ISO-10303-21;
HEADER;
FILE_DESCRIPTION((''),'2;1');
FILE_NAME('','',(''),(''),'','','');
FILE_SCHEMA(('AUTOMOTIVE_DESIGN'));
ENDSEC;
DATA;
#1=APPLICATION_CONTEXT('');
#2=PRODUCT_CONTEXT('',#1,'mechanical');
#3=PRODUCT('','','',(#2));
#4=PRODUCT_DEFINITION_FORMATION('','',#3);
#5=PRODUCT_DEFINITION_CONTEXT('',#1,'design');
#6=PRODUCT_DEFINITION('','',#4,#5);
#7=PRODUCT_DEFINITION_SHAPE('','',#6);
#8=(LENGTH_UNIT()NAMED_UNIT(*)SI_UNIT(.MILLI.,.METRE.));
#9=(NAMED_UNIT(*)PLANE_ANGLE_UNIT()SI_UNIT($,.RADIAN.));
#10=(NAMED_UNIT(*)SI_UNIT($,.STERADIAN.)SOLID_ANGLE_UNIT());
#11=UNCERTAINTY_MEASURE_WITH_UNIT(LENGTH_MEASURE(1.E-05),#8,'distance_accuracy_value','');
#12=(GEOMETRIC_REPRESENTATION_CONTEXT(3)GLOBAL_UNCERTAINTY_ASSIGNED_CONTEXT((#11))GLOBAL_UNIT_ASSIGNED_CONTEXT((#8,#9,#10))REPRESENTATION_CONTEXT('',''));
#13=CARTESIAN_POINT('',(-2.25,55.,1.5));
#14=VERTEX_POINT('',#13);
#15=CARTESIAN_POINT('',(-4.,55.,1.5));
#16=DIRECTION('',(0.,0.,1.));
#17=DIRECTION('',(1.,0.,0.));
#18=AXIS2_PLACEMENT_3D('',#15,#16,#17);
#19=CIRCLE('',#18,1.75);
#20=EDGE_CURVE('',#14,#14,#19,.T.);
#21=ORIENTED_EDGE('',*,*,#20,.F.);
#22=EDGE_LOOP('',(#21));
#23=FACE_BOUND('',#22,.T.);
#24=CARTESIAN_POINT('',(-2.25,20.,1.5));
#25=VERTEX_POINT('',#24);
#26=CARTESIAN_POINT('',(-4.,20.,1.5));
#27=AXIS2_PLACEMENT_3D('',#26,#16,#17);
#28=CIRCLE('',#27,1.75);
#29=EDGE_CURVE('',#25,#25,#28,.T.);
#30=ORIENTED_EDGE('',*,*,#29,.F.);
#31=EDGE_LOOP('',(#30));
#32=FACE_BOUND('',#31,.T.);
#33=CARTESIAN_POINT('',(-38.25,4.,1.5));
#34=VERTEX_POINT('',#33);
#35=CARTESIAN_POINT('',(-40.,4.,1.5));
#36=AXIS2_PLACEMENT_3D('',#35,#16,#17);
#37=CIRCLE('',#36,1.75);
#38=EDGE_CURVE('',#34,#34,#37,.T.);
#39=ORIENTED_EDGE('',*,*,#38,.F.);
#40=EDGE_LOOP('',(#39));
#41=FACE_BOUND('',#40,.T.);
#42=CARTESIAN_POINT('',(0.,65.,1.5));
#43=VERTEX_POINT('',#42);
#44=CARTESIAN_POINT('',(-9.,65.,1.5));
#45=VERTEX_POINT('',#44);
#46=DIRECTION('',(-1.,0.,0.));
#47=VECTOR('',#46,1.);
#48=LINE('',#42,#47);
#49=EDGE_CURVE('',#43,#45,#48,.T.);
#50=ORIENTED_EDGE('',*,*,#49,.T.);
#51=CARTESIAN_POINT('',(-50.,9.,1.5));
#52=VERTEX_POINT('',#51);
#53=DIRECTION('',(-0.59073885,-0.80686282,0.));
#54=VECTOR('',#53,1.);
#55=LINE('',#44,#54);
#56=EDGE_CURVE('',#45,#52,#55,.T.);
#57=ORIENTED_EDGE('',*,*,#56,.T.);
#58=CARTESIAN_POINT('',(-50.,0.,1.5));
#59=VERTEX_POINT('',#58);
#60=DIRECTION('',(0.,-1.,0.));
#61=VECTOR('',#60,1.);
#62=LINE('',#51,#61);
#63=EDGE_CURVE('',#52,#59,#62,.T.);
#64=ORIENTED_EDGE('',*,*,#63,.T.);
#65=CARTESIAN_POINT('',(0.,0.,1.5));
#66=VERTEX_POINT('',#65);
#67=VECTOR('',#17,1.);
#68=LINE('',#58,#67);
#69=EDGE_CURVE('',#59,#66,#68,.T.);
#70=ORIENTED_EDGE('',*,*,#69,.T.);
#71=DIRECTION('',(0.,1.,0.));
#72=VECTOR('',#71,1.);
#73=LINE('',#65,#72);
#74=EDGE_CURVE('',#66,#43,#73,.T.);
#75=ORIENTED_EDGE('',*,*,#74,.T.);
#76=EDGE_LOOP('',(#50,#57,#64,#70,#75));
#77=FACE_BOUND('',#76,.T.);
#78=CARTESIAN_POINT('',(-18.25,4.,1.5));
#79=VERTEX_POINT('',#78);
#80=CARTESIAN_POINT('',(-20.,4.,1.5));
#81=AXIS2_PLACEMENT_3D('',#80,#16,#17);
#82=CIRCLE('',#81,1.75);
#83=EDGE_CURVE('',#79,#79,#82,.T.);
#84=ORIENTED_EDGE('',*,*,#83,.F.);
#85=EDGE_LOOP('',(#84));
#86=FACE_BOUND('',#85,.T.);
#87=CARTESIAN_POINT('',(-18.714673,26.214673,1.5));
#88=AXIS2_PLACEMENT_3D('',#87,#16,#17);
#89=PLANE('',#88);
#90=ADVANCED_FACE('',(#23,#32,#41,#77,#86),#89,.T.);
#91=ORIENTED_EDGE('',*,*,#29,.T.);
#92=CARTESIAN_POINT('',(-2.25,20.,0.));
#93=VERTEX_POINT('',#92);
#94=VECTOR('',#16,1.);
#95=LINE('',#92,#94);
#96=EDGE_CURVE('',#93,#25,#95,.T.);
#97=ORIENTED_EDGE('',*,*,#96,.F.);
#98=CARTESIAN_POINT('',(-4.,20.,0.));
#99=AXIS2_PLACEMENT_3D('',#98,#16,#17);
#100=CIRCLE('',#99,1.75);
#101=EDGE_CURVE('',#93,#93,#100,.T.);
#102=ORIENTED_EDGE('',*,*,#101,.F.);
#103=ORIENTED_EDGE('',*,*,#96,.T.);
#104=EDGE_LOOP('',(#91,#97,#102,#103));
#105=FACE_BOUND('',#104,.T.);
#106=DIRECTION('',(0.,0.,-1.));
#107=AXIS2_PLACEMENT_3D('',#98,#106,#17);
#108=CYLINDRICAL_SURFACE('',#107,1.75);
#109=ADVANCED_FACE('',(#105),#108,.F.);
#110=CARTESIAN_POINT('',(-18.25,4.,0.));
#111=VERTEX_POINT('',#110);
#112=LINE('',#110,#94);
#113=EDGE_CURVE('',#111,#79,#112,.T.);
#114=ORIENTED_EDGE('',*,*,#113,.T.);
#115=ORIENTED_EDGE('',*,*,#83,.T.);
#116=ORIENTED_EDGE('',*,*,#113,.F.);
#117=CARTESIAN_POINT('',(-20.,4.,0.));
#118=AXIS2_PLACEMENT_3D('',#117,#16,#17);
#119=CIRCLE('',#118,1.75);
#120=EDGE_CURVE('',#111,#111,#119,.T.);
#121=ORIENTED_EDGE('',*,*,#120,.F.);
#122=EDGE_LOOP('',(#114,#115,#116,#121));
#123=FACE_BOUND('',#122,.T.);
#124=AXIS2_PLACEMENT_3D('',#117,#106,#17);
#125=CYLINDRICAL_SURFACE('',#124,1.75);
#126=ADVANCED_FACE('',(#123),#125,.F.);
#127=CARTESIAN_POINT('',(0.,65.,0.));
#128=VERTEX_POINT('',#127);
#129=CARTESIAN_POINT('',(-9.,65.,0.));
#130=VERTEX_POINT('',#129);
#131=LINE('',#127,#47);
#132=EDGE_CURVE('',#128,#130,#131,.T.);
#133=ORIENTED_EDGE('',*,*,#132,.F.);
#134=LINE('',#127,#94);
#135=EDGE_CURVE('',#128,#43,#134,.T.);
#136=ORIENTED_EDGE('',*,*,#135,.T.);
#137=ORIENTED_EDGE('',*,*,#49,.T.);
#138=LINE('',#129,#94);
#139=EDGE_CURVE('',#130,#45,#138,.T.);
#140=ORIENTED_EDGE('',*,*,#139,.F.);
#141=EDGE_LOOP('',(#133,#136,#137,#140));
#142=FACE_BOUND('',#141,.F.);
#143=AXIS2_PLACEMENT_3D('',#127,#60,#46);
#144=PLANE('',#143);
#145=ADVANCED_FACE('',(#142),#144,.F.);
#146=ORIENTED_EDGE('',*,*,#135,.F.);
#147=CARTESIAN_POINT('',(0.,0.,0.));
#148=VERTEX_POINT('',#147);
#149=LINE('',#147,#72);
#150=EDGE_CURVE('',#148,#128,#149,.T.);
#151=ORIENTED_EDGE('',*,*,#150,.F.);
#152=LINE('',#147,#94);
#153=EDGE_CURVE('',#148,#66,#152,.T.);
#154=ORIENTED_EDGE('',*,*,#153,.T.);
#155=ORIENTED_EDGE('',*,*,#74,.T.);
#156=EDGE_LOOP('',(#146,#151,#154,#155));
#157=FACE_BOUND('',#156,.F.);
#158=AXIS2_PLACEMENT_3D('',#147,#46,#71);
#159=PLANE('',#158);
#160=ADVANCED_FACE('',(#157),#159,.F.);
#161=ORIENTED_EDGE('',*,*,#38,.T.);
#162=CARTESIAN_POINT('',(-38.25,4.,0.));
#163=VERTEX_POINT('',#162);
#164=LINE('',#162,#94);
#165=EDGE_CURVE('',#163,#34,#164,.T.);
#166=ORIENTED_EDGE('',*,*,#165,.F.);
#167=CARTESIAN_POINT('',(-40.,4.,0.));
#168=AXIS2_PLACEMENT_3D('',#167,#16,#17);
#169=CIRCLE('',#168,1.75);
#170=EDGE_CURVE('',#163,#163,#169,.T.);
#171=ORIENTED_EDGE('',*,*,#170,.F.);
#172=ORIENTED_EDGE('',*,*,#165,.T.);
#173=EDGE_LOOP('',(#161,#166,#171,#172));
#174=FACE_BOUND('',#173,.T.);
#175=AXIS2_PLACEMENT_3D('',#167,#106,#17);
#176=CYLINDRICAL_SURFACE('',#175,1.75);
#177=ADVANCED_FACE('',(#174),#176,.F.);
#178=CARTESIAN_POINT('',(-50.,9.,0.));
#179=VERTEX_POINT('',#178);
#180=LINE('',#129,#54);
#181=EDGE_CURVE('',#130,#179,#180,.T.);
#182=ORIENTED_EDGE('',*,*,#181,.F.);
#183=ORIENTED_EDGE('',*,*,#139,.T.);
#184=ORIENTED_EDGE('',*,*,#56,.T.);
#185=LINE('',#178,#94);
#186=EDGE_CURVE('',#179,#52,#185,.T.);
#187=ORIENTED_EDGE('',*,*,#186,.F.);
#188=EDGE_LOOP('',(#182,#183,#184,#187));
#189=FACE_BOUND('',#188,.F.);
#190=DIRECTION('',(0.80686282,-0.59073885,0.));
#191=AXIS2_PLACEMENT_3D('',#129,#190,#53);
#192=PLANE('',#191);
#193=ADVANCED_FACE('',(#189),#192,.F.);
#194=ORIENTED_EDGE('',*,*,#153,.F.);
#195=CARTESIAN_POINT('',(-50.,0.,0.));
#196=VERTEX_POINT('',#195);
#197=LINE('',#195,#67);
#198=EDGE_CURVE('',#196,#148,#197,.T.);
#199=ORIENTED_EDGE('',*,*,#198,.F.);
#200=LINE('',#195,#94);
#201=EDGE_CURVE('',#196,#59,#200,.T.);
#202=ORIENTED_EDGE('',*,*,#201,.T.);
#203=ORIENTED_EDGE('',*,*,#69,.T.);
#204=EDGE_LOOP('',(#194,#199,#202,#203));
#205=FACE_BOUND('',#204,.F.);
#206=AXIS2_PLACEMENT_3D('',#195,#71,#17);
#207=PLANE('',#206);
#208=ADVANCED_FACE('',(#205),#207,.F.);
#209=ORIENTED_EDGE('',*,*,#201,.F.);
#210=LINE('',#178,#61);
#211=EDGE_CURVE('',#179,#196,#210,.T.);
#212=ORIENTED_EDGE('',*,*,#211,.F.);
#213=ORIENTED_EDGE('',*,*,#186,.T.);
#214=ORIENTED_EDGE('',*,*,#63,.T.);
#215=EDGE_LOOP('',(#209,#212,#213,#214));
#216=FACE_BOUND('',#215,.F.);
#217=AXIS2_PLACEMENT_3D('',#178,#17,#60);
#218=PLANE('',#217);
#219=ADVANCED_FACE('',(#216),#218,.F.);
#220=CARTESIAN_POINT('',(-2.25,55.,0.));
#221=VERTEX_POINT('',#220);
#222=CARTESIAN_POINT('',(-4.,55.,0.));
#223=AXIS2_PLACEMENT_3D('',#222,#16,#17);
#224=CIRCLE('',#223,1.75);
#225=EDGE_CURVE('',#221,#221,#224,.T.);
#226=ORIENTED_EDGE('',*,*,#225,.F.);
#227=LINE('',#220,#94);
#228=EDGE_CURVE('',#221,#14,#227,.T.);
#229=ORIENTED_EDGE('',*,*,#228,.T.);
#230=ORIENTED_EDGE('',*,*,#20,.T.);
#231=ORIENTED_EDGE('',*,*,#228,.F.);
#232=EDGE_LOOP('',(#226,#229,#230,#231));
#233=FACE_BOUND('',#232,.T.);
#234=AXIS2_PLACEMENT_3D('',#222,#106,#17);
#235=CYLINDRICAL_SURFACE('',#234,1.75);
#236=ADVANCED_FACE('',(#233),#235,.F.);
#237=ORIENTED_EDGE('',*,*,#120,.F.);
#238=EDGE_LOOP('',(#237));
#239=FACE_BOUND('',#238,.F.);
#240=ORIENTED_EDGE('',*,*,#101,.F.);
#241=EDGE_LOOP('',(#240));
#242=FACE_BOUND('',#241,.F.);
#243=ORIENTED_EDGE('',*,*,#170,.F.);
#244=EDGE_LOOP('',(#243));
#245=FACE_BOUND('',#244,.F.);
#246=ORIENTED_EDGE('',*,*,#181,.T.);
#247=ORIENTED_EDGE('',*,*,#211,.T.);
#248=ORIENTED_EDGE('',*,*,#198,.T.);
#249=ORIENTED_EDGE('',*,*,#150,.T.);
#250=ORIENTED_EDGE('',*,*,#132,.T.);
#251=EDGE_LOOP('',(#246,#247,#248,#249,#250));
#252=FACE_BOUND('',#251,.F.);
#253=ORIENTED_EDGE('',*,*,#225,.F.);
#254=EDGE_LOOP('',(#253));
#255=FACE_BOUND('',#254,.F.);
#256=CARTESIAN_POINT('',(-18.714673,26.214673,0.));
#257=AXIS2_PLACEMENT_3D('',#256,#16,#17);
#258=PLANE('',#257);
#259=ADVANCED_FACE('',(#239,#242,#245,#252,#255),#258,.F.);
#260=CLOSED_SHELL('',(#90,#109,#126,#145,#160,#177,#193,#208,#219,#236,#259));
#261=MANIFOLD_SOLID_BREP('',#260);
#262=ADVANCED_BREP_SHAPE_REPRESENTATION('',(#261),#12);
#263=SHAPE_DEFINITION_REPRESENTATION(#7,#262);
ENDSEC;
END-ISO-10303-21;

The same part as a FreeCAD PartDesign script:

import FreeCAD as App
import Part
import Sketcher

V = App.Vector

doc = App.newDocument("Part")
body = doc.addObject("PartDesign::Body", "Body")

# Sketch on XY plane
sketch1 = body.newObject("Sketcher::SketchObject", "Sketch")
sketch1.AttachmentSupport = (doc.getObject("XY_Plane"), [""])
sketch1.MapMode = "FlatFace"
sketch1.addGeometry(Part.LineSegment(V(-50, 0, 0), V(0, 0, 0)), False)
sketch1.addGeometry(Part.LineSegment(V(0, 0, 0), V(0, 65, 0)), False)
sketch1.addGeometry(Part.LineSegment(V(0, 65, 0), V(-9, 65, 0)), False)
sketch1.addGeometry(Part.LineSegment(V(-9, 65, 0), V(-50, 9, 0)), False)
sketch1.addGeometry(Part.LineSegment(V(-50, 9, 0), V(-50, 0, 0)), False)
sketch1.addGeometry(Part.Circle(V(-40, 4, 0), V(0, 0, 1), 1.8), False)
sketch1.addGeometry(Part.Circle(V(-20, 4, 0), V(0, 0, 1), 1.8), False)
sketch1.addGeometry(Part.Circle(V(-4, 20, 0), V(0, 0, 1), 1.8), False)
sketch1.addGeometry(Part.Circle(V(-4, 55, 0), V(0, 0, 1), 1.8), False)
sketch1.addConstraint(Sketcher.Constraint("Coincident", 0, 2, 1, 1))
sketch1.addConstraint(Sketcher.Constraint("Coincident", 1, 2, 2, 1))
sketch1.addConstraint(Sketcher.Constraint("Coincident", 2, 2, 3, 1))
sketch1.addConstraint(Sketcher.Constraint("Coincident", 3, 2, 4, 1))
sketch1.addConstraint(Sketcher.Constraint("Coincident", 4, 2, 0, 1))
sketch1.addConstraint(Sketcher.Constraint("Horizontal", 0))
sketch1.addConstraint(Sketcher.Constraint("Vertical", 1))
sketch1.addConstraint(Sketcher.Constraint("Horizontal", 2))
sketch1.addConstraint(Sketcher.Constraint("Vertical", 4))
sketch1.addConstraint(Sketcher.Constraint("Coincident", 0, 2, -1, 1))
sketch1.addConstraint(Sketcher.Constraint("Equal", 5, 6))
sketch1.addConstraint(Sketcher.Constraint("Equal", 6, 7))
sketch1.addConstraint(Sketcher.Constraint("Equal", 7, 8))
sketch1.addConstraint(Sketcher.Constraint("Horizontal", 5, 3, 6, 3))
sketch1.addConstraint(Sketcher.Constraint("Vertical", 7, 3, 8, 3))
sketch1.addConstraint(Sketcher.Constraint("Equal", 2, 4))
sketch1.addConstraint(Sketcher.Constraint("Diameter", 5, 3.5))
sketch1.addConstraint(Sketcher.Constraint("DistanceX", 0, 1, 0, 2, 50.0))
sketch1.addConstraint(Sketcher.Constraint("DistanceX", 2, 2, 2, 1, 9.0))
sketch1.addConstraint(Sketcher.Constraint("DistanceY", 1, 1, 1, 2, 65.0))
sketch1.addConstraint(Sketcher.Constraint("DistanceX", 5, 3, -1, 1, 40.0))
sketch1.addConstraint(Sketcher.Constraint("DistanceY", -1, 1, 5, 3, 4.0))
sketch1.addConstraint(Sketcher.Constraint("DistanceX", 6, 3, -1, 1, 20.0))
sketch1.addConstraint(Sketcher.Constraint("DistanceX", 7, 3, -1, 1, 4.0))
sketch1.addConstraint(Sketcher.Constraint("DistanceY", -1, 1, 7, 3, 20.0))
sketch1.addConstraint(Sketcher.Constraint("DistanceY", -1, 1, 8, 3, 55.0))
pad1 = body.newObject("PartDesign::Pad", "Pad")
pad1.Profile = sketch1
pad1.Length = 1.5

doc.recompute()
